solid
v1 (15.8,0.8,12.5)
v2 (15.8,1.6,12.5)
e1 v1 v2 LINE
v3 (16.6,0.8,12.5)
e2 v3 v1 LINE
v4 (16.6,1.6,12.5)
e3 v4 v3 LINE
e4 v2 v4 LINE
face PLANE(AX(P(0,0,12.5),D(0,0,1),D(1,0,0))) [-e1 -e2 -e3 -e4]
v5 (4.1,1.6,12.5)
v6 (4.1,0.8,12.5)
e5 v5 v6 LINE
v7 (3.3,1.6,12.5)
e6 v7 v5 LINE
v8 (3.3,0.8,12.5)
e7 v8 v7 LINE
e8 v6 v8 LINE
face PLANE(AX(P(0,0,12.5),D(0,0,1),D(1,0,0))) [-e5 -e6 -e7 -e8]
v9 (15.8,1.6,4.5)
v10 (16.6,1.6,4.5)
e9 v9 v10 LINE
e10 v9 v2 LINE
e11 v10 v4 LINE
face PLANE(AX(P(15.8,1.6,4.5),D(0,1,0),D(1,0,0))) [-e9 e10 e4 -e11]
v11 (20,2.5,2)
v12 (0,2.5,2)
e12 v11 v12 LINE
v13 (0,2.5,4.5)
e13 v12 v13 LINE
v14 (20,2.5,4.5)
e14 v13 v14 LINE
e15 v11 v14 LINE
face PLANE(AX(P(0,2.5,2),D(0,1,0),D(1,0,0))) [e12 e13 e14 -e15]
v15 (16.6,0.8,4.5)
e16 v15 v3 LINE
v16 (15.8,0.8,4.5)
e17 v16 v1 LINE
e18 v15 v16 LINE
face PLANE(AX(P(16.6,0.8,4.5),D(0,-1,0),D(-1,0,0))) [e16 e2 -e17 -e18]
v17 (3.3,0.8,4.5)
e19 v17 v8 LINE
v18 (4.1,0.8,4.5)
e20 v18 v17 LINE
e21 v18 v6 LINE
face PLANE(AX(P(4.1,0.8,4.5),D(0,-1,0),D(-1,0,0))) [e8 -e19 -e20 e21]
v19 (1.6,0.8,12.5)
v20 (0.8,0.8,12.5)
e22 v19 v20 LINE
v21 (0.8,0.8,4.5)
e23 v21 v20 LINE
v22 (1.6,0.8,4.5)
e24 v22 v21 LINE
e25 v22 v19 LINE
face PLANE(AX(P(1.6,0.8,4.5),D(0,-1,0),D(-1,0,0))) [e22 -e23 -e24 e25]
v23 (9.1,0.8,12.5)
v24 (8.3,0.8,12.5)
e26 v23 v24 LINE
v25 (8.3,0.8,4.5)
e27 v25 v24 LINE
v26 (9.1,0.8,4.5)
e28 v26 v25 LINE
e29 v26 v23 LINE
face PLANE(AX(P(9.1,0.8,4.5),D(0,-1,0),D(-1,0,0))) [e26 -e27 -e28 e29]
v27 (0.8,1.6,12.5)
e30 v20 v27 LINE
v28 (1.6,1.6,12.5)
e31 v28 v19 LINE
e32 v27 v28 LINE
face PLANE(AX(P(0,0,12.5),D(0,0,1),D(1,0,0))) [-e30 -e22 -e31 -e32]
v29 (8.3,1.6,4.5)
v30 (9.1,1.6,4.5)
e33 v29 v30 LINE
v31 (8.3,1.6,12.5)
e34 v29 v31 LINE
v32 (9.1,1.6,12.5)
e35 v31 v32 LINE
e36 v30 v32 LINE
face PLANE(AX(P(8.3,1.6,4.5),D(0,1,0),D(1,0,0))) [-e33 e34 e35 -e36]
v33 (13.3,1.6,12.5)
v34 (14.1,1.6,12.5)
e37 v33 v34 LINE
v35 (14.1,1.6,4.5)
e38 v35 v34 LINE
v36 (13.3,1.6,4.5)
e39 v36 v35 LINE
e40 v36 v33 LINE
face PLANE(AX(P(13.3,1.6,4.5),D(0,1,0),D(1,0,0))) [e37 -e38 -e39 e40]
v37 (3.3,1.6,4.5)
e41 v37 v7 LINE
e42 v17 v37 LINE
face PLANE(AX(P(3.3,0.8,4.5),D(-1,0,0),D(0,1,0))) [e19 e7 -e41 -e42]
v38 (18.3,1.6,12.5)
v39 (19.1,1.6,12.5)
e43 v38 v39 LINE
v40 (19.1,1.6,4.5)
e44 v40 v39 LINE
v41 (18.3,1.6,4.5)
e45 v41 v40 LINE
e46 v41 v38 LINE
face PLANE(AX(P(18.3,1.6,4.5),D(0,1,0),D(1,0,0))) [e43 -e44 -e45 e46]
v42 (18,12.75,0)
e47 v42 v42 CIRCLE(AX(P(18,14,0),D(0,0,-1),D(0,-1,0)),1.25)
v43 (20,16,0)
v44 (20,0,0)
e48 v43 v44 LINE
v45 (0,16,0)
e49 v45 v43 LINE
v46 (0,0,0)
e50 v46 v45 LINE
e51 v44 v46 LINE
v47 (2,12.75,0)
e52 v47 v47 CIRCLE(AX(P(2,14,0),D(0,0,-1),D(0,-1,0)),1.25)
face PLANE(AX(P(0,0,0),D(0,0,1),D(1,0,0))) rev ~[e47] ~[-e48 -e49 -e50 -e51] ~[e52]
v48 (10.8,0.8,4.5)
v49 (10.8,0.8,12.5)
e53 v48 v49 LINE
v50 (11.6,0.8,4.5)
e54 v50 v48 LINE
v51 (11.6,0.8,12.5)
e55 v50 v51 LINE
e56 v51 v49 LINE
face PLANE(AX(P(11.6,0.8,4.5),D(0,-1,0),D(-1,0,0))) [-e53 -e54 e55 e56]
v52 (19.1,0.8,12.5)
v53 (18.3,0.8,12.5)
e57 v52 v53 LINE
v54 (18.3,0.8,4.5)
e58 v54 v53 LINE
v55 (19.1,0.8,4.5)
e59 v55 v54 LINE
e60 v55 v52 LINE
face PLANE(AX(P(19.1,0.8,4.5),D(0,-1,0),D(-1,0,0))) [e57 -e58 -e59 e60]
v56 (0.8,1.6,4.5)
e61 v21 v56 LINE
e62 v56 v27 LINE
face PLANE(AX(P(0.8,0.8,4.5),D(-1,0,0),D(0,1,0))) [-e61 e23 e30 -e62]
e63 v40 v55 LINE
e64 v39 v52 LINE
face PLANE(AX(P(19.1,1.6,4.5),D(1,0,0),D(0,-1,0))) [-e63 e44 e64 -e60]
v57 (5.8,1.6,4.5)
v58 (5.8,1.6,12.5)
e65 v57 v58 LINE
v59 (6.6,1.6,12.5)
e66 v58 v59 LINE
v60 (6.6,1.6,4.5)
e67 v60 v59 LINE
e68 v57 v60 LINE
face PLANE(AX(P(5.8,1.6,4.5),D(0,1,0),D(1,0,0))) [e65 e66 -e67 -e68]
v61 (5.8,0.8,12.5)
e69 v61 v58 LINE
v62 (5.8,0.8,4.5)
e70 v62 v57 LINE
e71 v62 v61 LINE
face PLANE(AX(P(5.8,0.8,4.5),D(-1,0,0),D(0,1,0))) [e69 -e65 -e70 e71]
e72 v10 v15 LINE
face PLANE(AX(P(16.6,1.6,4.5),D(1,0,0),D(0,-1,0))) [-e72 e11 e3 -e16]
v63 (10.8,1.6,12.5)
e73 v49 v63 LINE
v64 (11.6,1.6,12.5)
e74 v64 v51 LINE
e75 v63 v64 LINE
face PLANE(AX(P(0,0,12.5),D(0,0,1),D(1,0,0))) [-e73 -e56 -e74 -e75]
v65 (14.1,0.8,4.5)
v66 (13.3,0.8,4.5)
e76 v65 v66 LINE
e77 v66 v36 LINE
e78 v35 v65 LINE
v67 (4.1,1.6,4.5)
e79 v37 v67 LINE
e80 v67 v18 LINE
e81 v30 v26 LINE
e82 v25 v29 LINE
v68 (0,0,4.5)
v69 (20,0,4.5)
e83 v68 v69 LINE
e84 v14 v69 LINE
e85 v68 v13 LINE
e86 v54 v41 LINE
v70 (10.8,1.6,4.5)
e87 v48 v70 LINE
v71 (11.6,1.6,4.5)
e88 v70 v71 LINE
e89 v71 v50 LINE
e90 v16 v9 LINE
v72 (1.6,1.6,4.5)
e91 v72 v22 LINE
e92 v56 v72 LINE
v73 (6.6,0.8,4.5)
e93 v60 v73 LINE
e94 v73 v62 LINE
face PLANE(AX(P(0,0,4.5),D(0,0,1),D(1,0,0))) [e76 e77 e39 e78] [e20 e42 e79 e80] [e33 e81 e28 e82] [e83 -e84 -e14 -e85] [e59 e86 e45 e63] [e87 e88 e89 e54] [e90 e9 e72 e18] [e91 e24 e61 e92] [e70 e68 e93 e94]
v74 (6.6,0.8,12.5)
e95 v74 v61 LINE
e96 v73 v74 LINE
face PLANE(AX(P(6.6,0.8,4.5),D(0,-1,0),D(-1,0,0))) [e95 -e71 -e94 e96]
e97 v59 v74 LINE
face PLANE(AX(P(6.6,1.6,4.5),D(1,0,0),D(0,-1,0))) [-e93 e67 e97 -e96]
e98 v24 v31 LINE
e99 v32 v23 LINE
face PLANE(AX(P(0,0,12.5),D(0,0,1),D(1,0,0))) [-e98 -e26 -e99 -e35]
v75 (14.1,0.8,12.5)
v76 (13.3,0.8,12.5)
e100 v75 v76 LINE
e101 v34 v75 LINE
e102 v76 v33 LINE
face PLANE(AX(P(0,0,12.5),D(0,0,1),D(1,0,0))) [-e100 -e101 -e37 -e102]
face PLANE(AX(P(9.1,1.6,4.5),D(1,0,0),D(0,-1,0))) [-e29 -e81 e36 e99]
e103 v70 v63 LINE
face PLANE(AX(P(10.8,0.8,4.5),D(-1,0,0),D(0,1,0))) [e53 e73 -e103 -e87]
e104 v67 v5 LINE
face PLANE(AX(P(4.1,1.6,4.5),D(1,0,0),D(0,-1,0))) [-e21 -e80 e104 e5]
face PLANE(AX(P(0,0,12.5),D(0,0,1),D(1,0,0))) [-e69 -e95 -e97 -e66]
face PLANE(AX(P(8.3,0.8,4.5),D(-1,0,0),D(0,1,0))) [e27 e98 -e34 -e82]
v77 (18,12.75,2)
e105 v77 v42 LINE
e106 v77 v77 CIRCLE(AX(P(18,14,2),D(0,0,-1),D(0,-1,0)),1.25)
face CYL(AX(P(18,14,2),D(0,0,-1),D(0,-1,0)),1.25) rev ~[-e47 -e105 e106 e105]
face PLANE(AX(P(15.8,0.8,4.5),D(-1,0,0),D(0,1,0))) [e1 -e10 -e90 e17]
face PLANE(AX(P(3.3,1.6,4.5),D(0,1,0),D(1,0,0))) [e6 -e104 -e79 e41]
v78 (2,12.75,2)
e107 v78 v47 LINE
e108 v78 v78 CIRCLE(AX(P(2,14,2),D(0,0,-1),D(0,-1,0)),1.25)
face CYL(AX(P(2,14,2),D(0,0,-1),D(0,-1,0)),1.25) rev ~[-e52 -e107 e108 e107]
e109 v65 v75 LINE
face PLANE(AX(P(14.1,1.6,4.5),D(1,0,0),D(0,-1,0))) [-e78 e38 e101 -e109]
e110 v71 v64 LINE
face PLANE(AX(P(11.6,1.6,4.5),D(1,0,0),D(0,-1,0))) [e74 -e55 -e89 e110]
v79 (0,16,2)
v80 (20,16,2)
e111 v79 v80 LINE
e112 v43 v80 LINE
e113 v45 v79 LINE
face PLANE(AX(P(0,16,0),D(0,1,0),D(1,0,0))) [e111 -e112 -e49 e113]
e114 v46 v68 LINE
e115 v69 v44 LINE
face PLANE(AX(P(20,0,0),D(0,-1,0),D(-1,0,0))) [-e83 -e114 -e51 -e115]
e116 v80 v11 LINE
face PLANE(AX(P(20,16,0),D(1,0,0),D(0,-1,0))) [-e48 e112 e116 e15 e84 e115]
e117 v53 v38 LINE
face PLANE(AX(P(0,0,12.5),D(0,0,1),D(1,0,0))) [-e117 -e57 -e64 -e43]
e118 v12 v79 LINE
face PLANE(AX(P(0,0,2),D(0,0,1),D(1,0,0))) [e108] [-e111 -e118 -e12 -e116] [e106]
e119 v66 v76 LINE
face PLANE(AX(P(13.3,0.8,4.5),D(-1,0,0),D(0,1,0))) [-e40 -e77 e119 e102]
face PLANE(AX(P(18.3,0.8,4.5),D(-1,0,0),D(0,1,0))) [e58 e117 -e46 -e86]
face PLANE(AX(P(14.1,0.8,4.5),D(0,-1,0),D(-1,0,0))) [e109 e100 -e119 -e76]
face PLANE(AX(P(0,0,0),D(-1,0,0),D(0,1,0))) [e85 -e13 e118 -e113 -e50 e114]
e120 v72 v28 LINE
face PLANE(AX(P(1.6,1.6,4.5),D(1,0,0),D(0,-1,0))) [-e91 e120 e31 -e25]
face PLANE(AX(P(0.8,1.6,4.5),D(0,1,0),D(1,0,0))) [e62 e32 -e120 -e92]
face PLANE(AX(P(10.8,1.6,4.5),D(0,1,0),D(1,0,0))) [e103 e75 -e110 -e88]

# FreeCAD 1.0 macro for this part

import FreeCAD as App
import Part
import Sketcher
Q = App.Units.Quantity

doc = App.newDocument("Part")
params = doc.addObject("Spreadsheet::Sheet", "Params")
for row, (alias, value) in enumerate([
    ("sketch1_width", "20 mm"),
    ("sketch1_height", "16 mm"),
    ("pad1_length", "2 mm"),
    ("sketch2_diameter", "2.5 mm"),
    ("hole_diameter", "2.5 mm"),
    ("sketch3_height", "2.5 mm"),
    ("sketch3_width", "20 mm"),
    ("pad2_length", "2.5 mm"),
    ("sketch4_width", "0.8 mm"),
    ("pad3_length", "8 mm"),
], start=1):
    params.set(f"A{row}", alias)
    params.set(f"B{row}", "=" + value)
    params.setAlias(f"B{row}", alias)

body = doc.addObject("PartDesign::Body", "Body")

# Sketch on XY plane
sketch1 = body.newObject("Sketcher::SketchObject", "Sketch")
sketch1.AttachmentSupport = (doc.getObject("XY_Plane"), [""])
sketch1.MapMode = "FlatFace"
sketch1.addGeometry([
    Part.LineSegment(App.Vector(20, 16, 0), App.Vector(0, 16, 0)),
    Part.LineSegment(App.Vector(0, 16, 0), App.Vector(0, 0, 0)),
    Part.LineSegment(App.Vector(0, 0, 0), App.Vector(20, 0, 0)),
    Part.LineSegment(App.Vector(20, 0, 0), App.Vector(20, 16, 0)),
], False)
sketch1.addConstraint([
    Sketcher.Constraint("Coincident", 0, 2, 1, 1),
    Sketcher.Constraint("Coincident", 1, 2, 2, 1),
    Sketcher.Constraint("Coincident", 2, 2, 3, 1),
    Sketcher.Constraint("Coincident", 3, 2, 0, 1),
    Sketcher.Constraint("Horizontal", 0),
    Sketcher.Constraint("Vertical", 1),
    Sketcher.Constraint("Horizontal", 2),
    Sketcher.Constraint("Vertical", 3),
    Sketcher.Constraint("Coincident", 1, 2, -1, 1),
    Sketcher.Constraint("DistanceX", 0, 2, 0, 1, Q("20 mm")),
    Sketcher.Constraint("DistanceY", 1, 2, 1, 1, Q("16 mm")),
])
sketch1.setExpression("Constraints[9]", "Params.sketch1_width")
sketch1.setExpression("Constraints[10]", "Params.sketch1_height")
pad1 = body.newObject("PartDesign::Pad", "Pad")
pad1.Profile = sketch1
pad1.setExpression("Length", "Params.pad1_length")

# Sketch on XY plane
sketch2 = body.newObject("Sketcher::SketchObject", "Sketch001")
sketch2.AttachmentSupport = (doc.getObject("XY_Plane"), [""])
sketch2.MapMode = "FlatFace"
sketch2.AttachmentOffset = App.Placement(App.Vector(0, 0, 2), App.Rotation())
sketch2.addGeometry([
    Part.Circle(App.Vector(2, 14, 0), App.Vector(0, 0, 1), 1.25),
    Part.Circle(App.Vector(18, 14, 0), App.Vector(0, 0, 1), 1.25),
], False)
sketch2.addConstraint([
    Sketcher.Constraint("Equal", 0, 1),
    Sketcher.Constraint("Horizontal", 0, 3, 1, 3),
    Sketcher.Constraint("Diameter", 0, Q("2.5 mm")),
    Sketcher.Constraint("DistanceX", -1, 1, 0, 3, Q("2 mm")),
    Sketcher.Constraint("DistanceY", -1, 1, 0, 3, Q("14 mm")),
    Sketcher.Constraint("DistanceX", -1, 1, 1, 3, Q("18 mm")),
])
sketch2.setExpression("Constraints[2]", "Params.sketch2_diameter")
doc.recompute()
hole = body.newObject("PartDesign::Hole", "Hole")
hole.Profile = sketch2
hole.ThreadType = "None"
hole.setExpression("Diameter", "Params.hole_diameter")
hole.DepthType = "ThroughAll"

# Sketch on XY plane
sketch3 = body.newObject("Sketcher::SketchObject", "Sketch002")
sketch3.AttachmentSupport = (doc.getObject("XY_Plane"), [""])
sketch3.MapMode = "FlatFace"
sketch3.AttachmentOffset = App.Placement(App.Vector(0, 0, 2), App.Rotation())
sketch3.addGeometry([
    Part.LineSegment(App.Vector(0, 2.5, 0), App.Vector(0, 0, 0)),
    Part.LineSegment(App.Vector(0, 0, 0), App.Vector(20, 0, 0)),
    Part.LineSegment(App.Vector(20, 0, 0), App.Vector(20, 2.5, 0)),
    Part.LineSegment(App.Vector(20, 2.5, 0), App.Vector(0, 2.5, 0)),
], False)
sketch3.addConstraint([
    Sketcher.Constraint("Coincident", 0, 2, 1, 1),
    Sketcher.Constraint("Coincident", 1, 2, 2, 1),
    Sketcher.Constraint("Coincident", 2, 2, 3, 1),
    Sketcher.Constraint("Coincident", 3, 2, 0, 1),
    Sketcher.Constraint("Vertical", 0),
    Sketcher.Constraint("Horizontal", 1),
    Sketcher.Constraint("Vertical", 2),
    Sketcher.Constraint("Horizontal", 3),
    Sketcher.Constraint("Coincident", 0, 2, -1, 1),
    Sketcher.Constraint("DistanceY", 0, 2, 0, 1, Q("2.5 mm")),
    Sketcher.Constraint("DistanceX", 1, 1, 1, 2, Q("20 mm")),
])
sketch3.setExpression("Constraints[9]", "Params.sketch3_height")
sketch3.setExpression("Constraints[10]", "Params.sketch3_width")
pad2 = body.newObject("PartDesign::Pad", "Pad001")
pad2.Profile = sketch3
pad2.setExpression("Length", "Params.pad2_length")

# Sketch on XY plane
sketch4 = body.newObject("Sketcher::SketchObject", "Sketch003")
sketch4.AttachmentSupport = (doc.getObject("XY_Plane"), [""])
sketch4.MapMode = "FlatFace"
sketch4.AttachmentOffset = App.Placement(App.Vector(0, 0, 4.5), App.Rotation())
sketch4.addGeometry([
    Part.LineSegment(App.Vector(1.6, 1.6, 0), App.Vector(0.8, 1.6, 0)),  # 0
    Part.LineSegment(App.Vector(0.8, 1.6, 0), App.Vector(0.8, 0.8, 0)),  # 1
    Part.LineSegment(App.Vector(0.8, 0.8, 0), App.Vector(1.6, 0.8, 0)),  # 2
    Part.LineSegment(App.Vector(1.6, 0.8, 0), App.Vector(1.6, 1.6, 0)),  # 3
    Part.LineSegment(App.Vector(4.1, 1.6, 0), App.Vector(3.3, 1.6, 0)),  # 4
    Part.LineSegment(App.Vector(3.3, 1.6, 0), App.Vector(3.3, 0.8, 0)),  # 5
    Part.LineSegment(App.Vector(3.3, 0.8, 0), App.Vector(4.1, 0.8, 0)),  # 6
    Part.LineSegment(App.Vector(4.1, 0.8, 0), App.Vector(4.1, 1.6, 0)),  # 7
    Part.LineSegment(App.Vector(6.6, 1.6, 0), App.Vector(5.8, 1.6, 0)),  # 8
    Part.LineSegment(App.Vector(5.8, 1.6, 0), App.Vector(5.8, 0.8, 0)),  # 9
    Part.LineSegment(App.Vector(5.8, 0.8, 0), App.Vector(6.6, 0.8, 0)),  # 10
    Part.LineSegment(App.Vector(6.6, 0.8, 0), App.Vector(6.6, 1.6, 0)),  # 11
    Part.LineSegment(App.Vector(9.1, 1.6, 0), App.Vector(8.3, 1.6, 0)),  # 12
    Part.LineSegment(App.Vector(8.3, 1.6, 0), App.Vector(8.3, 0.8, 0)),  # 13
    Part.LineSegment(App.Vector(8.3, 0.8, 0), App.Vector(9.1, 0.8, 0)),  # 14
    Part.LineSegment(App.Vector(9.1, 0.8, 0), App.Vector(9.1, 1.6, 0)),  # 15
    Part.LineSegment(App.Vector(11.6, 1.6, 0), App.Vector(10.8, 1.6, 0)),  # 16
    Part.LineSegment(App.Vector(10.8, 1.6, 0), App.Vector(10.8, 0.8, 0)),  # 17
    Part.LineSegment(App.Vector(10.8, 0.8, 0), App.Vector(11.6, 0.8, 0)),  # 18
    Part.LineSegment(App.Vector(11.6, 0.8, 0), App.Vector(11.6, 1.6, 0)),  # 19
    Part.LineSegment(App.Vector(14.1, 1.6, 0), App.Vector(13.3, 1.6, 0)),  # 20
    Part.LineSegment(App.Vector(13.3, 1.6, 0), App.Vector(13.3, 0.8, 0)),  # 21
    Part.LineSegment(App.Vector(13.3, 0.8, 0), App.Vector(14.1, 0.8, 0)),  # 22
    Part.LineSegment(App.Vector(14.1, 0.8, 0), App.Vector(14.1, 1.6, 0)),  # 23
    Part.LineSegment(App.Vector(16.6, 1.6, 0), App.Vector(15.8, 1.6, 0)),  # 24
    Part.LineSegment(App.Vector(15.8, 1.6, 0), App.Vector(15.8, 0.8, 0)),  # 25
    Part.LineSegment(App.Vector(15.8, 0.8, 0), App.Vector(16.6, 0.8, 0)),  # 26
    Part.LineSegment(App.Vector(16.6, 0.8, 0), App.Vector(16.6, 1.6, 0)),  # 27
    Part.LineSegment(App.Vector(19.1, 1.6, 0), App.Vector(18.3, 1.6, 0)),  # 28
    Part.LineSegment(App.Vector(18.3, 1.6, 0), App.Vector(18.3, 0.8, 0)),  # 29
    Part.LineSegment(App.Vector(18.3, 0.8, 0), App.Vector(19.1, 0.8, 0)),  # 30
    Part.LineSegment(App.Vector(19.1, 0.8, 0), App.Vector(19.1, 1.6, 0)),  # 31
], False)
sketch4.addConstraint([
    Sketcher.Constraint("Coincident", 0, 2, 1, 1),
    Sketcher.Constraint("Coincident", 1, 2, 2, 1),
    Sketcher.Constraint("Coincident", 2, 2, 3, 1),
    Sketcher.Constraint("Coincident", 3, 2, 0, 1),
    Sketcher.Constraint("Coincident", 4, 2, 5, 1),
    Sketcher.Constraint("Coincident", 5, 2, 6, 1),
    Sketcher.Constraint("Coincident", 6, 2, 7, 1),
    Sketcher.Constraint("Coincident", 7, 2, 4, 1),
    Sketcher.Constraint("Coincident", 8, 2, 9, 1),
    Sketcher.Constraint("Coincident", 9, 2, 10, 1),
    Sketcher.Constraint("Coincident", 10, 2, 11, 1),
    Sketcher.Constraint("Coincident", 11, 2, 8, 1),
    Sketcher.Constraint("Coincident", 12, 2, 13, 1),
    Sketcher.Constraint("Coincident", 13, 2, 14, 1),
    Sketcher.Constraint("Coincident", 14, 2, 15, 1),
    Sketcher.Constraint("Coincident", 15, 2, 12, 1),
    Sketcher.Constraint("Coincident", 16, 2, 17, 1),
    Sketcher.Constraint("Coincident", 17, 2, 18, 1),
    Sketcher.Constraint("Coincident", 18, 2, 19, 1),
    Sketcher.Constraint("Coincident", 19, 2, 16, 1),
    Sketcher.Constraint("Coincident", 20, 2, 21, 1),
    Sketcher.Constraint("Coincident", 21, 2, 22, 1),
    Sketcher.Constraint("Coincident", 22, 2, 23, 1),
    Sketcher.Constraint("Coincident", 23, 2, 20, 1),
    Sketcher.Constraint("Coincident", 24, 2, 25, 1),
    Sketcher.Constraint("Coincident", 25, 2, 26, 1),
    Sketcher.Constraint("Coincident", 26, 2, 27, 1),
    Sketcher.Constraint("Coincident", 27, 2, 24, 1),
    Sketcher.Constraint("Coincident", 28, 2, 29, 1),
    Sketcher.Constraint("Coincident", 29, 2, 30, 1),
    Sketcher.Constraint("Coincident", 30, 2, 31, 1),
    Sketcher.Constraint("Coincident", 31, 2, 28, 1),
    Sketcher.Constraint("Horizontal", 0),
    Sketcher.Constraint("Vertical", 1),
    Sketcher.Constraint("Horizontal", 2),
    Sketcher.Constraint("Vertical", 3),
    Sketcher.Constraint("Horizontal", 4),
    Sketcher.Constraint("Vertical", 5),
    Sketcher.Constraint("Horizontal", 6),
    Sketcher.Constraint("Vertical", 7),
    Sketcher.Constraint("Horizontal", 8),
    Sketcher.Constraint("Vertical", 9),
    Sketcher.Constraint("Horizontal", 10),
    Sketcher.Constraint("Vertical", 11),
    Sketcher.Constraint("Horizontal", 12),
    Sketcher.Constraint("Vertical", 13),
    Sketcher.Constraint("Horizontal", 14),
    Sketcher.Constraint("Vertical", 15),
    Sketcher.Constraint("Horizontal", 16),
    Sketcher.Constraint("Vertical", 17),
    Sketcher.Constraint("Horizontal", 18),
    Sketcher.Constraint("Vertical", 19),
    Sketcher.Constraint("Horizontal", 20),
    Sketcher.Constraint("Vertical", 21),
    Sketcher.Constraint("Horizontal", 22),
    Sketcher.Constraint("Vertical", 23),
    Sketcher.Constraint("Horizontal", 24),
    Sketcher.Constraint("Vertical", 25),
    Sketcher.Constraint("Horizontal", 26),
    Sketcher.Constraint("Vertical", 27),
    Sketcher.Constraint("Horizontal", 28),
    Sketcher.Constraint("Vertical", 29),
    Sketcher.Constraint("Horizontal", 30),
    Sketcher.Constraint("Vertical", 31),
    Sketcher.Constraint("Horizontal", 3, 2, 4, 2),
    Sketcher.Constraint("Horizontal", 2, 2, 5, 2),
    Sketcher.Constraint("Horizontal", 7, 2, 8, 2),
    Sketcher.Constraint("Horizontal", 6, 2, 9, 2),
    Sketcher.Constraint("Horizontal", 11, 2, 12, 2),
    Sketcher.Constraint("Horizontal", 10, 2, 13, 2),
    Sketcher.Constraint("Horizontal", 15, 2, 16, 2),
    Sketcher.Constraint("Horizontal", 14, 2, 17, 2),
    Sketcher.Constraint("Horizontal", 19, 2, 20, 2),
    Sketcher.Constraint("Horizontal", 18, 2, 21, 2),
    Sketcher.Constraint("Horizontal", 23, 2, 24, 2),
    Sketcher.Constraint("Horizontal", 22, 2, 25, 2),
    Sketcher.Constraint("Horizontal", 27, 2, 28, 2),
    Sketcher.Constraint("Horizontal", 26, 2, 29, 2),
    Sketcher.Constraint("Equal", 2, 4),
    Sketcher.Constraint("Equal", 6, 8),
    Sketcher.Constraint("Equal", 10, 12),
    Sketcher.Constraint("Equal", 14, 16),
    Sketcher.Constraint("Equal", 18, 20),
    Sketcher.Constraint("Equal", 22, 24),
    Sketcher.Constraint("Equal", 26, 28),
    Sketcher.Constraint("Equal", 30, 1),
    Sketcher.Constraint("DistanceX", 0, 2, 0, 1, Q("0.8 mm")),
    Sketcher.Constraint("DistanceX", -1, 1, 0, 2, Q("0.8 mm")),
    Sketcher.Constraint("DistanceY", -1, 1, 1, 2, Q("0.8 mm")),
    Sketcher.Constraint("DistanceX", 0, 2, 4, 2, Q("2.5 mm")),
    Sketcher.Constraint("DistanceX", 4, 2, 8, 2, Q("2.5 mm")),
    Sketcher.Constraint("DistanceX", 8, 2, 12, 2, Q("2.5 mm")),
    Sketcher.Constraint("DistanceX", 12, 2, 16, 2, Q("2.5 mm")),
    Sketcher.Constraint("DistanceX", 16, 2, 20, 2, Q("2.5 mm")),
    Sketcher.Constraint("DistanceX", 20, 2, 24, 2, Q("2.5 mm")),
    Sketcher.Constraint("DistanceX", 24, 2, 28, 2, Q("2.5 mm")),
])
sketch4.setExpression("Constraints[86]", "Params.sketch4_width")
pad3 = body.newObject("PartDesign::Pad", "Pad002")
pad3.Profile = sketch4
pad3.setExpression("Length", "Params.pad3_length")

doc.recompute()
